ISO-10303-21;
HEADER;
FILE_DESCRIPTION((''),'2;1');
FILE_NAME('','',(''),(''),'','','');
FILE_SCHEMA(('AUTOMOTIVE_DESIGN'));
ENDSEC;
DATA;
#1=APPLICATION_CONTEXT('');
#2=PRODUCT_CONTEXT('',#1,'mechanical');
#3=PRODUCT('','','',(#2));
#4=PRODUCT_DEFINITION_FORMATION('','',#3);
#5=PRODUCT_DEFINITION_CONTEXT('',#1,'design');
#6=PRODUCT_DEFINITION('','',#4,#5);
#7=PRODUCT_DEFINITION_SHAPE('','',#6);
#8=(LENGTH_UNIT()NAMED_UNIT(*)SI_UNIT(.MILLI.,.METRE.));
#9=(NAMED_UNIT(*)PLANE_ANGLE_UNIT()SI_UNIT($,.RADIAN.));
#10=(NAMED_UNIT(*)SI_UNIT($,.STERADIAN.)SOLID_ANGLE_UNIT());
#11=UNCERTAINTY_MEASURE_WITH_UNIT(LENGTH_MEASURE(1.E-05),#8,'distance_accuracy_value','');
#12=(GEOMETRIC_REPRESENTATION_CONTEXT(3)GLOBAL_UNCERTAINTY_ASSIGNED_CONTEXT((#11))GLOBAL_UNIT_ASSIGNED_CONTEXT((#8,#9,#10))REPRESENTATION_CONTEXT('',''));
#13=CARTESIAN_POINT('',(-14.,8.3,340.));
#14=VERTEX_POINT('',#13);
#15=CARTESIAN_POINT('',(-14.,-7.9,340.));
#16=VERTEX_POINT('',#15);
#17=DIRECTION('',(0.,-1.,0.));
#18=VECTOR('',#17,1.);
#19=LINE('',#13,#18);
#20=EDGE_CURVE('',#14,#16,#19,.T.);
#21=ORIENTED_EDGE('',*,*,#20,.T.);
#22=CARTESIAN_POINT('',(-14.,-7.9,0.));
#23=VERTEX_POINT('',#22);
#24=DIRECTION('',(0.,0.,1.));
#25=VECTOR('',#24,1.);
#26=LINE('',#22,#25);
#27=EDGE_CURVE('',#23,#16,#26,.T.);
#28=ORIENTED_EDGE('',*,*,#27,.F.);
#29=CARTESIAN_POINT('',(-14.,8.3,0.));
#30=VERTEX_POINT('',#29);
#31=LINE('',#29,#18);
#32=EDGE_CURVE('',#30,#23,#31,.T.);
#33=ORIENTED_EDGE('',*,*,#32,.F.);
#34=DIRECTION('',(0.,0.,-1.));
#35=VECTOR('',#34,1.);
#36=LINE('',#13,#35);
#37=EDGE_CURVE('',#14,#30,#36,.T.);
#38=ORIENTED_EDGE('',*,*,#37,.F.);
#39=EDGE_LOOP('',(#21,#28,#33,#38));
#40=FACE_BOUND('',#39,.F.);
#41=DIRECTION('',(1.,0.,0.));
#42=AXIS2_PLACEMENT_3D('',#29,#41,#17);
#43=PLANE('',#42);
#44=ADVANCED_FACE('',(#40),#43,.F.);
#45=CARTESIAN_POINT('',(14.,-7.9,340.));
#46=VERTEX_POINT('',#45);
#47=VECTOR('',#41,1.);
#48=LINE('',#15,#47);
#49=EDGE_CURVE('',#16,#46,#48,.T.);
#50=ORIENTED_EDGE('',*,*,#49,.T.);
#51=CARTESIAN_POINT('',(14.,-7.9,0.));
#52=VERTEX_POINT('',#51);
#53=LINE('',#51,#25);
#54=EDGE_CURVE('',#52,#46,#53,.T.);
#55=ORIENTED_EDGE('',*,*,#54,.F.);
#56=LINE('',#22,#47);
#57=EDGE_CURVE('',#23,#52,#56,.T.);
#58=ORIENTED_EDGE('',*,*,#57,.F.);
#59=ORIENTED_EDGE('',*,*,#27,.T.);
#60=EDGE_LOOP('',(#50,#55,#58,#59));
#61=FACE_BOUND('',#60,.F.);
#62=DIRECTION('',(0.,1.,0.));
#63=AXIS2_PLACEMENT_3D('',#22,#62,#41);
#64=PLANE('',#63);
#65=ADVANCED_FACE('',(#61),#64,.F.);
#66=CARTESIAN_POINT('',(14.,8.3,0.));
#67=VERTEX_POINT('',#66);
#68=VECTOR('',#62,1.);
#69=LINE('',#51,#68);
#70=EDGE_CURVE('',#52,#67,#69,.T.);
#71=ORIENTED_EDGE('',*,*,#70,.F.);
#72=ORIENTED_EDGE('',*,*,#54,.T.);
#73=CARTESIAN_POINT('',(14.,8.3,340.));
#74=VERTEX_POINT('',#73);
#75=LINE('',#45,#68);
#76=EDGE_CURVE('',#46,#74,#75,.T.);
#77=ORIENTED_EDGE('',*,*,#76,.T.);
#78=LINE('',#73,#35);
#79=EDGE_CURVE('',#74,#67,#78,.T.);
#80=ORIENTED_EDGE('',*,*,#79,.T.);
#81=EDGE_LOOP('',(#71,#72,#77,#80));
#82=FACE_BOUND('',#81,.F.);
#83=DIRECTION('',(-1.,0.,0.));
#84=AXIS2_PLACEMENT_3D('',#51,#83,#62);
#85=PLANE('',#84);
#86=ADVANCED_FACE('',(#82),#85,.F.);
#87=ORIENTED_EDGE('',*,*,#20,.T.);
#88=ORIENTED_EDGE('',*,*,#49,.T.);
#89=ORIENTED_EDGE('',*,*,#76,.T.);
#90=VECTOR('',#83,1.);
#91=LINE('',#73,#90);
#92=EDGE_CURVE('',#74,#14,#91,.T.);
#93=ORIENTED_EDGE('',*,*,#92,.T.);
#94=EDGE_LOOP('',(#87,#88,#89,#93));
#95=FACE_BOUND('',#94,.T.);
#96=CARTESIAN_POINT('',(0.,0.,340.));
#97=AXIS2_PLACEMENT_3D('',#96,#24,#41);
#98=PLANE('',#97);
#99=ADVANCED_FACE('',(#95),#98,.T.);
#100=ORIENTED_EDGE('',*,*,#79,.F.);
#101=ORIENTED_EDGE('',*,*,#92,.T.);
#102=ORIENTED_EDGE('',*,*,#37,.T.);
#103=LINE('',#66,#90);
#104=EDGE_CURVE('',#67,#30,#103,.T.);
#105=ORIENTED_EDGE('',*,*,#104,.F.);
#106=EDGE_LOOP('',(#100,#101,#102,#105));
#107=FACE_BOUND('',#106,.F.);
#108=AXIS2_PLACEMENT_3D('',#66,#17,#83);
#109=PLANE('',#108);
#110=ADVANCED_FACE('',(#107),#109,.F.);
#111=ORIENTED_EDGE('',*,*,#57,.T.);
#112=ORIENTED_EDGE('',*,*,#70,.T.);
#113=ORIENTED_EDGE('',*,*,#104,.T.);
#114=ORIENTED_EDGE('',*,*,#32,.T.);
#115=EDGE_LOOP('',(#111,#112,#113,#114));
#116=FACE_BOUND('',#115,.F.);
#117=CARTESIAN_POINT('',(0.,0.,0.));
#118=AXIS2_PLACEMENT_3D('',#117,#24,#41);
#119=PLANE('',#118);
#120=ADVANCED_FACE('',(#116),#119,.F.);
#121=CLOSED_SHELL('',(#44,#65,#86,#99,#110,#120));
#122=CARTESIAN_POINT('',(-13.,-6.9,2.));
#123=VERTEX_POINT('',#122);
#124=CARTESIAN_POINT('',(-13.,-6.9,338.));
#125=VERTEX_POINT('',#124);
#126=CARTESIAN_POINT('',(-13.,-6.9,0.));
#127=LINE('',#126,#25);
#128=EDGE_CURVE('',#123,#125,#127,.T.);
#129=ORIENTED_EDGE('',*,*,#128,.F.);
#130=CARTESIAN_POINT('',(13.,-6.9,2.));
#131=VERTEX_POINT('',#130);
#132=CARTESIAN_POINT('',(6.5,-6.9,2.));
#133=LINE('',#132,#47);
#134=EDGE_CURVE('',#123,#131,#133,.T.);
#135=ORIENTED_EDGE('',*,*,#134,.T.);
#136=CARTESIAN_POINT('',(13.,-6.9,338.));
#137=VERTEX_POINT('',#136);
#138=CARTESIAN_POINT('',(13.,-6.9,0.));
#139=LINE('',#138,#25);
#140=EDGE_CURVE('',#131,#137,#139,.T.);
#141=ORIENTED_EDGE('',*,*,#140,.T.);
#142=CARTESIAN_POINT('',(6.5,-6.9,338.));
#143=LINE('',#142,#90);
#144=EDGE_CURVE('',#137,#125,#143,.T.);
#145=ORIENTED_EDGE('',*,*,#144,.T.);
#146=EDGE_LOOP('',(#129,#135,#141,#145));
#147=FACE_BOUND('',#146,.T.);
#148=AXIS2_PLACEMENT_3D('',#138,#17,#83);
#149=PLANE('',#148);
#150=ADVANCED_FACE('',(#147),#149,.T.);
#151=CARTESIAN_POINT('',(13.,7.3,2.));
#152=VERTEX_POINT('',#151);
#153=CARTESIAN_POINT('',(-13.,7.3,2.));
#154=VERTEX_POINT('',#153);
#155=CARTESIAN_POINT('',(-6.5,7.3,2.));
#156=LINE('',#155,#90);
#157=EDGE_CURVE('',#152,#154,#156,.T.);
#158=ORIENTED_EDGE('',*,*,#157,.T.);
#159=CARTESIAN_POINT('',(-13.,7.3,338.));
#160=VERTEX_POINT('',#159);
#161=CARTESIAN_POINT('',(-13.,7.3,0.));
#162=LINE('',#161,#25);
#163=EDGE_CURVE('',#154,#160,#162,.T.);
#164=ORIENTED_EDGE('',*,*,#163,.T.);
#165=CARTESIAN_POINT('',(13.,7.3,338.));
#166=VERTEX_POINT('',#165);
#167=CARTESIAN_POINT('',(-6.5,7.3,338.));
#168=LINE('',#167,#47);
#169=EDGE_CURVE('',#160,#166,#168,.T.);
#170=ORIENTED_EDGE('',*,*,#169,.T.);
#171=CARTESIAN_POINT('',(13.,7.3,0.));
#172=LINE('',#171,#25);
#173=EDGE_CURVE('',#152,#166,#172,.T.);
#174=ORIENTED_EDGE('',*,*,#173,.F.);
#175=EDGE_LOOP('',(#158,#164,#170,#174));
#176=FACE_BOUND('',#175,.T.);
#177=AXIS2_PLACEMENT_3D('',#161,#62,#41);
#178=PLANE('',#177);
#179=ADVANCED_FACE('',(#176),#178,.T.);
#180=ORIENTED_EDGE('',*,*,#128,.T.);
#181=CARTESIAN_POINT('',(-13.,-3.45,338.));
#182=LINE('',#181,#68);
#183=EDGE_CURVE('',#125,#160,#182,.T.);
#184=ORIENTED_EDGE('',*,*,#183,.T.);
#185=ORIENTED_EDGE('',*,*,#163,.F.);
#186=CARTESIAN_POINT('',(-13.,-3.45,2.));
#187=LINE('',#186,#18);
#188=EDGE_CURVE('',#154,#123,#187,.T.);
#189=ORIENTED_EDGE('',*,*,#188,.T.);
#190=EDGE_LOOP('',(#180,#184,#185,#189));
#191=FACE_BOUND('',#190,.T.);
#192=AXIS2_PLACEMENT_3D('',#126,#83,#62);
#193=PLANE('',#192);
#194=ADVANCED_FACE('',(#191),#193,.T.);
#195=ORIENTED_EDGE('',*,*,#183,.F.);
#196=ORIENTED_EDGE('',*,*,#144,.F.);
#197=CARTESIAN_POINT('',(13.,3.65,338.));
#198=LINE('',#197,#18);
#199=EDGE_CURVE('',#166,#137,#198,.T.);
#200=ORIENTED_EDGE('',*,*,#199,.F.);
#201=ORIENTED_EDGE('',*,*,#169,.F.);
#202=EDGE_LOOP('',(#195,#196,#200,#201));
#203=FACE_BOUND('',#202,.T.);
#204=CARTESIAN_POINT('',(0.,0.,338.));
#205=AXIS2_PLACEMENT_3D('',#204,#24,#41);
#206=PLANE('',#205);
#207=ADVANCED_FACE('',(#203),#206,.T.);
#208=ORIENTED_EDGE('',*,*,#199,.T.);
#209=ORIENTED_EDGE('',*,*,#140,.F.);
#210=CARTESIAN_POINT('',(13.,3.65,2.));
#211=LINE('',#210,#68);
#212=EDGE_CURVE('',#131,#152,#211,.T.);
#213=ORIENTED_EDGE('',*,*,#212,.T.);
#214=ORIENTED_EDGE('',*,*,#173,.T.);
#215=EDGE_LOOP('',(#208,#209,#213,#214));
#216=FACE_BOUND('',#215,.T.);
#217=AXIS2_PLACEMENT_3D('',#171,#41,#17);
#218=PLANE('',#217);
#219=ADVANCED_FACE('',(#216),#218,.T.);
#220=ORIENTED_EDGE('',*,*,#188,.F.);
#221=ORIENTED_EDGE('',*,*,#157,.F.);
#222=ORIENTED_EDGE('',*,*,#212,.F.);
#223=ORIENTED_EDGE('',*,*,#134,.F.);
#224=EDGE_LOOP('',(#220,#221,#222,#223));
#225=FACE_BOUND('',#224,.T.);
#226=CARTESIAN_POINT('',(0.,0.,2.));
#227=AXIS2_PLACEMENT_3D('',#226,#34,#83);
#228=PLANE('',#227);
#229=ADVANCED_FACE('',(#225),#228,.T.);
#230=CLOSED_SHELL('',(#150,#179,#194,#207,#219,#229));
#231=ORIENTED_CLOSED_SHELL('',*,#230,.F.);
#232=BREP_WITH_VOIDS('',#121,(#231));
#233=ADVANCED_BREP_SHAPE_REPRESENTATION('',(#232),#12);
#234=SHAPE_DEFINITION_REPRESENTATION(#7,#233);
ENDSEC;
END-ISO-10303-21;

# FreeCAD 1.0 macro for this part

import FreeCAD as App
import Part
import Sketcher

V = App.Vector
Q = App.Units.Quantity


def add_polygon(sketch, points):
    """Adds a closed chain of lines whose ends are joined by coincident constraints."""
    first, n = sketch.GeometryCount, len(points)
    for a, b in zip(points, points[1:] + points[:1]):
        sketch.addGeometry(Part.LineSegment(App.Vector(*a, 0), App.Vector(*b, 0)), False)
    for i in range(n):
        sketch.addConstraint(Sketcher.Constraint("Coincident", first + i, 2, first + (i + 1) % n, 1))

doc = App.newDocument("Part")
params = doc.addObject("Spreadsheet::Sheet", "Params")
for row, (alias, value) in enumerate([
    ("sketch1_width", "28 mm"),
    ("sketch1_height", "16.2 mm"),
    ("pad1_length", "340 mm"),
    ("sketch2_width", "28 mm"),
    ("sketch2_height", "16.2 mm"),
    ("pad2_length", "2 mm"),
    ("sketch3_width", "28 mm"),
    ("sketch3_height", "16.2 mm"),
    ("pad3_length", "2 mm"),
], start=1):
    params.set(f"A{row}", alias)
    params.set(f"B{row}", "=" + value)
    params.setAlias(f"B{row}", alias)

body = doc.addObject("PartDesign::Body", "Body")

# Sketch on XY plane
sketch1 = body.newObject("Sketcher::SketchObject", "Sketch")
sketch1.AttachmentSupport = (doc.getObject("XY_Plane"), [""])
sketch1.MapMode = "FlatFace"
add_polygon(sketch1, [(-14, 8), (-14, -8), (14, -8), (14, 8)])  # lines 0-3
add_polygon(sketch1, [(-13, -7), (-13, 7), (13, 7), (13, -7)])  # lines 4-7
sketch1.addConstraint(Sketcher.Constraint("Vertical", 0))
sketch1.addConstraint(Sketcher.Constraint("Horizontal", 1))
sketch1.addConstraint(Sketcher.Constraint("Vertical", 2))
sketch1.addConstraint(Sketcher.Constraint("Horizontal", 3))
sketch1.addConstraint(Sketcher.Constraint("Vertical", 4))
sketch1.addConstraint(Sketcher.Constraint("Horizontal", 5))
sketch1.addConstraint(Sketcher.Constraint("Vertical", 6))
sketch1.addConstraint(Sketcher.Constraint("Horizontal", 7))
sketch1.addConstraint(Sketcher.Constraint("DistanceX", 3, 2, 4, 2, Q("1 mm")))
sketch1.addConstraint(Sketcher.Constraint("DistanceY", 4, 2, 3, 2, Q("1 mm")))
sketch1.addConstraint(Sketcher.Constraint("DistanceX", 5, 2, 2, 2, Q("1 mm")))
sketch1.addConstraint(Sketcher.Constraint("DistanceY", 1, 2, 6, 2, Q("1 mm")))
sketch1.addConstraint(Sketcher.Constraint("DistanceX", 1, 1, 1, 2, Q("28 mm")))
sketch1.addConstraint(Sketcher.Constraint("DistanceY", 0, 2, 0, 1, Q("16.2 mm")))
sketch1.addConstraint(Sketcher.Constraint("DistanceX", 0, 2, -1, 1, Q("14 mm")))
sketch1.addConstraint(Sketcher.Constraint("DistanceY", 0, 2, -1, 1, Q("7.9 mm")))
sketch1.setExpression("Constraints[20]", "Params.sketch1_width")
sketch1.setExpression("Constraints[21]", "Params.sketch1_height")
pad1 = body.newObject("PartDesign::Pad", "Pad")
pad1.Profile = sketch1
pad1.setExpression("Length", "Params.pad1_length")

# Sketch on XY plane
sketch2 = body.newObject("Sketcher::SketchObject", "Sketch001")
sketch2.AttachmentSupport = (doc.getObject("XY_Plane"), [""])
sketch2.MapMode = "FlatFace"
sketch2.AttachmentOffset = App.Placement(V(0, 0, 340), App.Rotation())
add_polygon(sketch2, [(14, 8), (-14, 8), (-14, -8), (14, -8)])  # lines 0-3
sketch2.addConstraint(Sketcher.Constraint("Horizontal", 0))
sketch2.addConstraint(Sketcher.Constraint("Vertical", 1))
sketch2.addConstraint(Sketcher.Constraint("Horizontal", 2))
sketch2.addConstraint(Sketcher.Constraint("Vertical", 3))
sketch2.addConstraint(Sketcher.Constraint("DistanceX", 0, 2, 0, 1, Q("28 mm")))
sketch2.addConstraint(Sketcher.Constraint("DistanceY", 1, 2, 1, 1, Q("16.2 mm")))
sketch2.addConstraint(Sketcher.Constraint("DistanceX", 0, 2, -1, 1, Q("14 mm")))
sketch2.addConstraint(Sketcher.Constraint("DistanceY", -1, 1, 0, 2, Q("8.3 mm")))
sketch2.setExpression("Constraints[8]", "Params.sketch2_width")
sketch2.setExpression("Constraints[9]", "Params.sketch2_height")
pad2 = body.newObject("PartDesign::Pad", "Pad001")
pad2.Profile = sketch2
pad2.setExpression("Length", "Params.pad2_length")
pad2.Reversed = True

# Sketch on XY plane
sketch3 = body.newObject("Sketcher::SketchObject", "Sketch002")
sketch3.AttachmentSupport = (doc.getObject("XY_Plane"), [""])
sketch3.MapMode = "FlatFace"
add_polygon(sketch3, [(14, -8), (-14, -8), (-14, 8), (14, 8)])  # lines 0-3
sketch3.addConstraint(Sketcher.Constraint("Horizontal", 0))
sketch3.addConstraint(Sketcher.Constraint("Vertical", 1))
sketch3.addConstraint(Sketcher.Constraint("Horizontal", 2))
sketch3.addConstraint(Sketcher.Constraint("Vertical", 3))
sketch3.addConstraint(Sketcher.Constraint("DistanceX", 0, 2, 0, 1, Q("28 mm")))
sketch3.addConstraint(Sketcher.Constraint("DistanceY", 1, 1, 1, 2, Q("16.2 mm")))
sketch3.addConstraint(Sketcher.Constraint("DistanceX", 0, 2, -1, 1, Q("14 mm")))
sketch3.addConstraint(Sketcher.Constraint("DistanceY", 0, 2, -1, 1, Q("7.9 mm")))
sketch3.setExpression("Constraints[8]", "Params.sketch3_width")
sketch3.setExpression("Constraints[9]", "Params.sketch3_height")
pad3 = body.newObject("PartDesign::Pad", "Pad002")
pad3.Profile = sketch3
pad3.setExpression("Length", "Params.pad3_length")

doc.recompute()
